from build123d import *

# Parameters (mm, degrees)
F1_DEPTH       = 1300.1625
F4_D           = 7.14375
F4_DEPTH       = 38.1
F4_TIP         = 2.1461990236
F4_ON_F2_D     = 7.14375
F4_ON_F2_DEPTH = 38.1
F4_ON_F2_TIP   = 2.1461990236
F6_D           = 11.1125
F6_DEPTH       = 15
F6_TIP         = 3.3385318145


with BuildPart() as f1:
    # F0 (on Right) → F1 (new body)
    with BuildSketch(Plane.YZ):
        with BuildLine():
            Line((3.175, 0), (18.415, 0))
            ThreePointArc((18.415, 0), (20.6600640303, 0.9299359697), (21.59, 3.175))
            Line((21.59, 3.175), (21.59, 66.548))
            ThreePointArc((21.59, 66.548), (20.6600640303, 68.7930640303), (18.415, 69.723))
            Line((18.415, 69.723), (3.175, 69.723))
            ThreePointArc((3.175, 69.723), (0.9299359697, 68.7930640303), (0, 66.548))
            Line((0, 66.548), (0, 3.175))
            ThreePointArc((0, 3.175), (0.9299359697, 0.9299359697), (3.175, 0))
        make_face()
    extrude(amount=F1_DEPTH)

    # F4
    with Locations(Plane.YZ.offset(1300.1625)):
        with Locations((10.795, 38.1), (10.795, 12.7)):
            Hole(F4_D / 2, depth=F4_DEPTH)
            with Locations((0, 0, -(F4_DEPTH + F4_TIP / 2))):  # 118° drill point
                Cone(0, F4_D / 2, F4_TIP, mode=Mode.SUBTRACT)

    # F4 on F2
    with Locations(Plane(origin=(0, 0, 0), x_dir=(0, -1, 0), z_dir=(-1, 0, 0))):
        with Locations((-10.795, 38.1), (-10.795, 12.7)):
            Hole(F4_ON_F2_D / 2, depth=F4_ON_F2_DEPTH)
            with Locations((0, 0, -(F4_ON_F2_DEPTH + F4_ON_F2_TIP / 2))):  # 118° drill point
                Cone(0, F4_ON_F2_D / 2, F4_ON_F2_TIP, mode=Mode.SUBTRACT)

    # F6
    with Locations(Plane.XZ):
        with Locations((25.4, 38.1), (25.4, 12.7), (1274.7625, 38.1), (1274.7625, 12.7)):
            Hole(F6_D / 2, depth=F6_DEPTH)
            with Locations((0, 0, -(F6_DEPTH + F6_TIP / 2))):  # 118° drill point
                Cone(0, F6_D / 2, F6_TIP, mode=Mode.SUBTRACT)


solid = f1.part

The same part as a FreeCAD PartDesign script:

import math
import FreeCAD as App
import Part
import Sketcher
from FreeCAD import Vector
Q = App.Units.Quantity

doc = App.newDocument("Part")
body = doc.addObject("PartDesign::Body", "Body")

sketch1 = body.newObject("Sketcher::SketchObject", "Sketch")
sketch1.AttachmentSupport = (doc.getObject("YZ_Plane"), [""])
sketch1.MapMode = "FlatFace"
sketch1.addGeometry(Part.LineSegment(Vector(3.2, 0, 0), Vector(18.4, 0, 0)), False)
sketch1.addGeometry(Part.ArcOfCircle(Part.Circle(Vector(18.4, 3.2, 0), Vector(0, 0, 1), 3.2), math.radians(-90), math.radians(0)), False)
sketch1.addGeometry(Part.LineSegment(Vector(21.6, 3.2, 0), Vector(21.6, 66.5, 0)), False)
sketch1.addGeometry(Part.ArcOfCircle(Part.Circle(Vector(18.4, 66.5, 0), Vector(0, 0, 1), 3.2), math.radians(0), math.radians(90)), False)
sketch1.addGeometry(Part.LineSegment(Vector(18.4, 69.7, 0), Vector(3.2, 69.7, 0)), False)
sketch1.addGeometry(Part.ArcOfCircle(Part.Circle(Vector(3.2, 66.5, 0), Vector(0, 0, 1), 3.2), math.radians(90), math.radians(180)), False)
sketch1.addGeometry(Part.LineSegment(Vector(0, 66.5, 0), Vector(0, 3.2, 0)), False)
sketch1.addGeometry(Part.ArcOfCircle(Part.Circle(Vector(3.2, 3.2, 0), Vector(0, 0, 1), 3.2), math.radians(180), math.radians(270)), False)
sketch1.addConstraint(Sketcher.Constraint("Tangent", 0, 2, 1, 1))
sketch1.addConstraint(Sketcher.Constraint("Tangent", 1, 2, 2, 1))
sketch1.addConstraint(Sketcher.Constraint("Tangent", 2, 2, 3, 1))
sketch1.addConstraint(Sketcher.Constraint("Tangent", 3, 2, 4, 1))
sketch1.addConstraint(Sketcher.Constraint("Tangent", 4, 2, 5, 1))
sketch1.addConstraint(Sketcher.Constraint("Tangent", 5, 2, 6, 1))
sketch1.addConstraint(Sketcher.Constraint("Tangent", 6, 2, 7, 1))
sketch1.addConstraint(Sketcher.Constraint("Tangent", 7, 2, 0, 1))
sketch1.addConstraint(Sketcher.Constraint("Horizontal", 0))
sketch1.addConstraint(Sketcher.Constraint("Vertical", 2))
sketch1.addConstraint(Sketcher.Constraint("Horizontal", 4))
sketch1.addConstraint(Sketcher.Constraint("Vertical", 6))
sketch1.addConstraint(Sketcher.Constraint("Equal", 1, 3))
sketch1.addConstraint(Sketcher.Constraint("Equal", 3, 5))
sketch1.addConstraint(Sketcher.Constraint("Equal", 5, 7))
sketch1.addConstraint(Sketcher.Constraint("PointOnObject", 0, 2, -1))
sketch1.addConstraint(Sketcher.Constraint("PointOnObject", 5, 2, -2))
sketch1.addConstraint(Sketcher.Constraint("DistanceX", 0, 1, 0, 2, Q("0.6 in")))
sketch1.addConstraint(Sketcher.Constraint("Radius", 1, Q("0.125 in")))
sketch1.addConstraint(Sketcher.Constraint("DistanceY", 2, 1, 2, 2, Q("2.495 in")))
pad1 = body.newObject("PartDesign::Pad", "Pad")
pad1.Profile = sketch1
pad1.Length = Q("51.1875 in")

sketch2 = body.newObject("Sketcher::SketchObject", "Sketch001")
sketch2.AttachmentSupport = (doc.getObject("YZ_Plane"), [""])
sketch2.MapMode = "FlatFace"
sketch2.AttachmentOffset = App.Placement(Vector(0, 0, 51.1875 * 25.4), App.Rotation())
sketch2.addGeometry(Part.Circle(Vector(10.8, 38.1, 0), Vector(0, 0, 1), 3.6), False)
sketch2.addGeometry(Part.Circle(Vector(10.8, 12.7, 0), Vector(0, 0, 1), 3.6), False)
sketch2.addConstraint(Sketcher.Constraint("Equal", 0, 1))
sketch2.addConstraint(Sketcher.Constraint("Vertical", 0, 3, 1, 3))
sketch2.addConstraint(Sketcher.Constraint("Diameter", 0, Q("0.28125 in")))
sketch2.addConstraint(Sketcher.Constraint("DistanceY", 1, 3, 0, 3, Q("1 in")))
sketch2.addConstraint(Sketcher.Constraint("DistanceY", -1, 1, 0, 3, Q("1.5 in")))
sketch2.addConstraint(Sketcher.Constraint("DistanceX", -1, 1, 0, 3, Q("0.425 in")))
doc.recompute()
hole = body.newObject("PartDesign::Hole", "Hole")
hole.Profile = sketch2
hole.ThreadType = "None"
hole.Diameter = Q("0.28125 in")
hole.DepthType = "Dimension"
hole.Depth = Q("1.5 in")
hole.DrillPoint = "Angled"
hole.DrillPointAngle = 118

sketch3 = body.newObject("Sketcher::SketchObject", "Sketch002")
sketch3.AttachmentSupport = (doc.getObject("YZ_Plane"), [""])
sketch3.MapMode = "FlatFace"
sketch3.addGeometry(Part.Circle(Vector(10.8, 38.1, 0), Vector(0, 0, 1), 3.6), False)
sketch3.addGeometry(Part.Circle(Vector(10.8, 12.7, 0), Vector(0, 0, 1), 3.6), False)
sketch3.addConstraint(Sketcher.Constraint("Equal", 0, 1))
sketch3.addConstraint(Sketcher.Constraint("Vertical", 0, 3, 1, 3))
sketch3.addConstraint(Sketcher.Constraint("Diameter", 0, Q("0.28125 in")))
sketch3.addConstraint(Sketcher.Constraint("DistanceY", 1, 3, 0, 3, Q("1 in")))
sketch3.addConstraint(Sketcher.Constraint("DistanceY", -1, 1, 0, 3, Q("1.5 in")))
sketch3.addConstraint(Sketcher.Constraint("DistanceX", -1, 1, 0, 3, Q("0.425 in")))
doc.recompute()
hole2 = body.newObject("PartDesign::Hole", "Hole001")
hole2.Profile = sketch3
hole2.ThreadType = "None"
hole2.Diameter = Q("0.28125 in")
hole2.DepthType = "Dimension"
hole2.Depth = Q("1.5 in")
hole2.DrillPoint = "Angled"
hole2.DrillPointAngle = 118
hole2.Reversed = True

sketch4 = body.newObject("Sketcher::SketchObject", "Sketch003")
sketch4.AttachmentSupport = (doc.getObject("XZ_Plane"), [""])
sketch4.MapMode = "FlatFace"
sketch4.addGeometry(Part.Circle(Vector(25, 38, 0), Vector(0, 0, 1), 6), False)
sketch4.addGeometry(Part.Circle(Vector(25, 13, 0), Vector(0, 0, 1), 6), False)
sketch4.addGeometry(Part.Circle(Vector(1275, 38, 0), Vector(0, 0, 1), 6), False)
sketch4.addGeometry(Part.Circle(Vector(1275, 13, 0), Vector(0, 0, 1), 6), False)
sketch4.addConstraint(Sketcher.Constraint("Equal", 0, 1))
sketch4.addConstraint(Sketcher.Constraint("Equal", 1, 2))
sketch4.addConstraint(Sketcher.Constraint("Equal", 2, 3))
sketch4.addConstraint(Sketcher.Constraint("Horizontal", 0, 3, 2, 3))
sketch4.addConstraint(Sketcher.Constraint("Horizontal", 1, 3, 3, 3))
sketch4.addConstraint(Sketcher.Constraint("Vertical", 0, 3, 1, 3))
sketch4.addConstraint(Sketcher.Constraint("Vertical", 2, 3, 3, 3))
sketch4.addConstraint(Sketcher.Constraint("Diameter", 0, Q("0.4375 in")))
sketch4.addConstraint(Sketcher.Constraint("DistanceX", -1, 1, 0, 3, Q("1 in")))
sketch4.addConstraint(Sketcher.Constraint("DistanceY", 1, 3, 0, 3, Q("1 in")))
sketch4.addConstraint(Sketcher.Constraint("DistanceY", -1, 1, 0, 3, Q("1.5 in")))
sketch4.addConstraint(Sketcher.Constraint("DistanceX", -1, 1, 2, 3, Q("50.1875 in")))
doc.recompute()
hole3 = body.newObject("PartDesign::Hole", "Hole002")
hole3.Profile = sketch4
hole3.ThreadType = "None"
hole3.Diameter = Q("0.4375 in")
hole3.DepthType = "Dimension"
hole3.Depth = 15
hole3.DrillPoint = "Angled"
hole3.DrillPointAngle = 118

doc.recompute()
